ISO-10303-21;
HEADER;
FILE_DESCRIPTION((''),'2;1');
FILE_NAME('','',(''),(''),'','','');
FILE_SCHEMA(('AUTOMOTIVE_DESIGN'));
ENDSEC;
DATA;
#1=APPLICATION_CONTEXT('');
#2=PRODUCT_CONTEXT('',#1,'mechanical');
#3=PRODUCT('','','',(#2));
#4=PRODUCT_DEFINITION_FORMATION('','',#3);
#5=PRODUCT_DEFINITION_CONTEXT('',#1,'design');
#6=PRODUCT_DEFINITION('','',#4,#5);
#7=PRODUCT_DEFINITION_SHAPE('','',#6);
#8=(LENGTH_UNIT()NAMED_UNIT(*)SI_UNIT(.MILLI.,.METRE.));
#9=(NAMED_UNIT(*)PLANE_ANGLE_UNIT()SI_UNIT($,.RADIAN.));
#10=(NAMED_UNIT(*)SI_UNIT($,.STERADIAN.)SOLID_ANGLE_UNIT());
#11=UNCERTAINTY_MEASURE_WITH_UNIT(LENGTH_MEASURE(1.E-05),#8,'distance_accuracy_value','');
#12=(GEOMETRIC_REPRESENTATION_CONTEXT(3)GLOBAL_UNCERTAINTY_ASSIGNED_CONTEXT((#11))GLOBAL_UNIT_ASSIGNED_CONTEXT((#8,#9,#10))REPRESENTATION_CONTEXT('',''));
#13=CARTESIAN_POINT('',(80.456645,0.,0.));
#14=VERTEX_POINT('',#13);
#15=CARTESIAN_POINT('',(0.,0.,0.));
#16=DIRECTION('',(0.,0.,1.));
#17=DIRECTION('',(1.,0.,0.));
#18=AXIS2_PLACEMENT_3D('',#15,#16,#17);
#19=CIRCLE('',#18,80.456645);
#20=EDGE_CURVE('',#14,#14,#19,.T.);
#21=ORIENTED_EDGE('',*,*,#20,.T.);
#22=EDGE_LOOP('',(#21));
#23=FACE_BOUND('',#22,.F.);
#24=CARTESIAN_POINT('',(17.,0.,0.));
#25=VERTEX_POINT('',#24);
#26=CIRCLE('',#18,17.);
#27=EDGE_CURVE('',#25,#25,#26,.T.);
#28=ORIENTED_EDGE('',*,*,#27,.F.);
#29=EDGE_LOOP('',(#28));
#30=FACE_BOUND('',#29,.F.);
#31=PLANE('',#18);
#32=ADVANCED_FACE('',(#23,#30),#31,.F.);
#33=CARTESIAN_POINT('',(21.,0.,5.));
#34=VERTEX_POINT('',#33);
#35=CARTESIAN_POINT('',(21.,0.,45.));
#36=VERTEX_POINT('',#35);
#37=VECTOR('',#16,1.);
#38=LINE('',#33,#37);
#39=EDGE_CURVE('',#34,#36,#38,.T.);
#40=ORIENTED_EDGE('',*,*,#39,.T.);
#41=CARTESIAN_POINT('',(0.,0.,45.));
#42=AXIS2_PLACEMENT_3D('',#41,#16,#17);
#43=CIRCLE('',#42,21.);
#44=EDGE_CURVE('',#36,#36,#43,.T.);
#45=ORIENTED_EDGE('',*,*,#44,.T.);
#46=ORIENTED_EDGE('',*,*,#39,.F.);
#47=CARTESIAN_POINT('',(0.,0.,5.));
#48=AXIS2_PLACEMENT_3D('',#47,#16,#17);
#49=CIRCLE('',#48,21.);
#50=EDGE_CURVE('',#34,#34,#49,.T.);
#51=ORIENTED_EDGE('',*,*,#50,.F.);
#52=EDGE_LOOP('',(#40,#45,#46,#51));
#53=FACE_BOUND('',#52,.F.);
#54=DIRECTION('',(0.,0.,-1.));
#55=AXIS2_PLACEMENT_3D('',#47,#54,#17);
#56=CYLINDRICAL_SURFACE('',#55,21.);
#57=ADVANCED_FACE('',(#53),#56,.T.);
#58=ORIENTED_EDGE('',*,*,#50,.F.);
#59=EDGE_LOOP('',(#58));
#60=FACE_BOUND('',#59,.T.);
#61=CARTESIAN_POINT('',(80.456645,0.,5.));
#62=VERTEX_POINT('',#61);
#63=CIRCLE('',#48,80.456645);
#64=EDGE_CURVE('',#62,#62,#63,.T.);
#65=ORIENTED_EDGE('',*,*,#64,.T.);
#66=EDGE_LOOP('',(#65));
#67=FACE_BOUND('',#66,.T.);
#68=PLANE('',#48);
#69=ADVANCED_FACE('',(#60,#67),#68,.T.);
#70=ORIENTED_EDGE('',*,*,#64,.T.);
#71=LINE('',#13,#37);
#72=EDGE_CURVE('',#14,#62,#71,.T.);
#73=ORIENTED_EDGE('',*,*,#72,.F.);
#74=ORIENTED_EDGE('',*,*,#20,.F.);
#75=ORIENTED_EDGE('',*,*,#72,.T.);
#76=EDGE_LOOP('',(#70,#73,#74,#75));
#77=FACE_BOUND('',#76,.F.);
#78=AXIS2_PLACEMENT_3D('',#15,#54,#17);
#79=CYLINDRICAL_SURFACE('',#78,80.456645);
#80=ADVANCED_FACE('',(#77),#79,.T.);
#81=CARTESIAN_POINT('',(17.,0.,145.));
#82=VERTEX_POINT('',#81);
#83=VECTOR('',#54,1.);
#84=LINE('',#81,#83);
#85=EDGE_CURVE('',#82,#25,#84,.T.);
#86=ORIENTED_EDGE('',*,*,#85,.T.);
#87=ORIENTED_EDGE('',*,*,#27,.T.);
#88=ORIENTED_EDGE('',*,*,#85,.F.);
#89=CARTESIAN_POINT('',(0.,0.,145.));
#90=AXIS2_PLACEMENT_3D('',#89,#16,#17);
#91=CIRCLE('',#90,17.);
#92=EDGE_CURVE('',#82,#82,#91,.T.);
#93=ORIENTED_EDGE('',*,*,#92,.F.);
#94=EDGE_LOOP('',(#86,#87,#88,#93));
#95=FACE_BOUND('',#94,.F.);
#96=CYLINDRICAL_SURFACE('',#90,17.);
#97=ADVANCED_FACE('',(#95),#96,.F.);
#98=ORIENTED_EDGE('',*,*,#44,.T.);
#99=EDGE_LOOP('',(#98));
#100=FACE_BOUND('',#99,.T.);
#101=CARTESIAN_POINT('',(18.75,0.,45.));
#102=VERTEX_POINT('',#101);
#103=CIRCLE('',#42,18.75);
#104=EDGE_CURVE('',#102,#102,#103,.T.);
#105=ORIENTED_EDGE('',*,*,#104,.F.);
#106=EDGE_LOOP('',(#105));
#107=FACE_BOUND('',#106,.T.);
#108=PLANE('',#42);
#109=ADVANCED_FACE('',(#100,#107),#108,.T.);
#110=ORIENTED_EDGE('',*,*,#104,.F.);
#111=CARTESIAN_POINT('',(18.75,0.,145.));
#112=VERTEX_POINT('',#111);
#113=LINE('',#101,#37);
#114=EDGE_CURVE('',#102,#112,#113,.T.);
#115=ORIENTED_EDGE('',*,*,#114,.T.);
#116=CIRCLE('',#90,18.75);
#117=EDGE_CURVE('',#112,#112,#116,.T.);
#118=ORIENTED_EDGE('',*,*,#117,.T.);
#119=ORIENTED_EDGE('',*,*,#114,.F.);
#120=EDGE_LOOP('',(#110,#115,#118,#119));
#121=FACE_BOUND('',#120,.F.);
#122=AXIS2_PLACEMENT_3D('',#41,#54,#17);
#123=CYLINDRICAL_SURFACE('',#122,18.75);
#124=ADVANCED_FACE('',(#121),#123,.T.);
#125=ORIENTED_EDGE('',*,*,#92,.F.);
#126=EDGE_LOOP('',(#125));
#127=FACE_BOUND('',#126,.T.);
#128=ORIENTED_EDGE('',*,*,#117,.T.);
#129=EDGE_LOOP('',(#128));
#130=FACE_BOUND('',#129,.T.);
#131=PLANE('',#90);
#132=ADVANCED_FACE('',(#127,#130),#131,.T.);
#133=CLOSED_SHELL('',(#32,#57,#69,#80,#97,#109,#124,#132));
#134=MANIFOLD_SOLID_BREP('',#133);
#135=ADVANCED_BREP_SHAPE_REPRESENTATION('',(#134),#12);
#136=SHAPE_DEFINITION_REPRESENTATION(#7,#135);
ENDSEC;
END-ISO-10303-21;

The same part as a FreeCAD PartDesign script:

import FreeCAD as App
import Part
import Sketcher

V = App.Vector
Q = App.Units.Quantity

doc = App.newDocument("Part")
body = doc.addObject("PartDesign::Body", "Body")

# Sketch on XY plane
sketch1 = doc.addObject("Sketcher::SketchObject", "Sketch")
body.addObject(sketch1)
sketch1.AttachmentSupport = (doc.XY_Plane, [""])
sketch1.MapMode = "FlatFace"
sketch1.addGeometry(Part.Circle(V(0, 0, 0), V(0, 0, 1), 80.456645), False)
sketch1.addConstraint([
    Sketcher.Constraint("Coincident", 0, 3, -1, 1),
    Sketcher.Constraint("Diameter", 0, Q("160.91329 mm")),
])
pad1 = doc.addObject("PartDesign::Pad", "Pad")
body.addObject(pad1)
pad1.Profile = sketch1
pad1.Length = 5

# Sketch on XY plane
sketch2 = doc.addObject("Sketcher::SketchObject", "Sketch001")
body.addObject(sketch2)
sketch2.AttachmentSupport = (doc.XY_Plane, [""])
sketch2.MapMode = "FlatFace"
sketch2.AttachmentOffset = App.Placement(V(0, 0, 5), App.Rotation())
sketch2.addGeometry(Part.Circle(V(0, 0, 0), V(0, 0, 1), 21), False)
sketch2.addConstraint([
    Sketcher.Constraint("Coincident", 0, 3, -1, 1),
    Sketcher.Constraint("Diameter", 0, Q("42 mm")),
])
pad2 = doc.addObject("PartDesign::Pad", "Pad001")
body.addObject(pad2)
pad2.Profile = sketch2
pad2.Length = 40

# Sketch on XY plane
sketch3 = doc.addObject("Sketcher::SketchObject", "Sketch002")
body.addObject(sketch3)
sketch3.AttachmentSupport = (doc.XY_Plane, [""])
sketch3.MapMode = "FlatFace"
sketch3.AttachmentOffset = App.Placement(V(0, 0, 45), App.Rotation())
sketch3.addGeometry(Part.Circle(V(0, 0, 0), V(0, 0, 1), 18.75), False)
sketch3.addConstraint([
    Sketcher.Constraint("Coincident", 0, 3, -1, 1),
    Sketcher.Constraint("Diameter", 0, Q("37.5 mm")),
])
pad3 = doc.addObject("PartDesign::Pad", "Pad002")
body.addObject(pad3)
pad3.Profile = sketch3
pad3.Length = 100

# Sketch on XY plane
sketch4 = doc.addObject("Sketcher::SketchObject", "Sketch003")
body.addObject(sketch4)
sketch4.AttachmentSupport = (doc.XY_Plane, [""])
sketch4.MapMode = "FlatFace"
sketch4.AttachmentOffset = App.Placement(V(0, 0, 145), App.Rotation())
sketch4.addGeometry(Part.Circle(V(0, 0, 0), V(0, 0, 1), 17), False)
sketch4.addConstraint([
    Sketcher.Constraint("Coincident", 0, 3, -1, 1),
    Sketcher.Constraint("Diameter", 0, Q("34 mm")),
])
pocket1 = doc.addObject("PartDesign::Pocket", "Pocket")
body.addObject(pocket1)
pocket1.Profile = sketch4
pocket1.Type = "ThroughAll"

doc.recompute()
